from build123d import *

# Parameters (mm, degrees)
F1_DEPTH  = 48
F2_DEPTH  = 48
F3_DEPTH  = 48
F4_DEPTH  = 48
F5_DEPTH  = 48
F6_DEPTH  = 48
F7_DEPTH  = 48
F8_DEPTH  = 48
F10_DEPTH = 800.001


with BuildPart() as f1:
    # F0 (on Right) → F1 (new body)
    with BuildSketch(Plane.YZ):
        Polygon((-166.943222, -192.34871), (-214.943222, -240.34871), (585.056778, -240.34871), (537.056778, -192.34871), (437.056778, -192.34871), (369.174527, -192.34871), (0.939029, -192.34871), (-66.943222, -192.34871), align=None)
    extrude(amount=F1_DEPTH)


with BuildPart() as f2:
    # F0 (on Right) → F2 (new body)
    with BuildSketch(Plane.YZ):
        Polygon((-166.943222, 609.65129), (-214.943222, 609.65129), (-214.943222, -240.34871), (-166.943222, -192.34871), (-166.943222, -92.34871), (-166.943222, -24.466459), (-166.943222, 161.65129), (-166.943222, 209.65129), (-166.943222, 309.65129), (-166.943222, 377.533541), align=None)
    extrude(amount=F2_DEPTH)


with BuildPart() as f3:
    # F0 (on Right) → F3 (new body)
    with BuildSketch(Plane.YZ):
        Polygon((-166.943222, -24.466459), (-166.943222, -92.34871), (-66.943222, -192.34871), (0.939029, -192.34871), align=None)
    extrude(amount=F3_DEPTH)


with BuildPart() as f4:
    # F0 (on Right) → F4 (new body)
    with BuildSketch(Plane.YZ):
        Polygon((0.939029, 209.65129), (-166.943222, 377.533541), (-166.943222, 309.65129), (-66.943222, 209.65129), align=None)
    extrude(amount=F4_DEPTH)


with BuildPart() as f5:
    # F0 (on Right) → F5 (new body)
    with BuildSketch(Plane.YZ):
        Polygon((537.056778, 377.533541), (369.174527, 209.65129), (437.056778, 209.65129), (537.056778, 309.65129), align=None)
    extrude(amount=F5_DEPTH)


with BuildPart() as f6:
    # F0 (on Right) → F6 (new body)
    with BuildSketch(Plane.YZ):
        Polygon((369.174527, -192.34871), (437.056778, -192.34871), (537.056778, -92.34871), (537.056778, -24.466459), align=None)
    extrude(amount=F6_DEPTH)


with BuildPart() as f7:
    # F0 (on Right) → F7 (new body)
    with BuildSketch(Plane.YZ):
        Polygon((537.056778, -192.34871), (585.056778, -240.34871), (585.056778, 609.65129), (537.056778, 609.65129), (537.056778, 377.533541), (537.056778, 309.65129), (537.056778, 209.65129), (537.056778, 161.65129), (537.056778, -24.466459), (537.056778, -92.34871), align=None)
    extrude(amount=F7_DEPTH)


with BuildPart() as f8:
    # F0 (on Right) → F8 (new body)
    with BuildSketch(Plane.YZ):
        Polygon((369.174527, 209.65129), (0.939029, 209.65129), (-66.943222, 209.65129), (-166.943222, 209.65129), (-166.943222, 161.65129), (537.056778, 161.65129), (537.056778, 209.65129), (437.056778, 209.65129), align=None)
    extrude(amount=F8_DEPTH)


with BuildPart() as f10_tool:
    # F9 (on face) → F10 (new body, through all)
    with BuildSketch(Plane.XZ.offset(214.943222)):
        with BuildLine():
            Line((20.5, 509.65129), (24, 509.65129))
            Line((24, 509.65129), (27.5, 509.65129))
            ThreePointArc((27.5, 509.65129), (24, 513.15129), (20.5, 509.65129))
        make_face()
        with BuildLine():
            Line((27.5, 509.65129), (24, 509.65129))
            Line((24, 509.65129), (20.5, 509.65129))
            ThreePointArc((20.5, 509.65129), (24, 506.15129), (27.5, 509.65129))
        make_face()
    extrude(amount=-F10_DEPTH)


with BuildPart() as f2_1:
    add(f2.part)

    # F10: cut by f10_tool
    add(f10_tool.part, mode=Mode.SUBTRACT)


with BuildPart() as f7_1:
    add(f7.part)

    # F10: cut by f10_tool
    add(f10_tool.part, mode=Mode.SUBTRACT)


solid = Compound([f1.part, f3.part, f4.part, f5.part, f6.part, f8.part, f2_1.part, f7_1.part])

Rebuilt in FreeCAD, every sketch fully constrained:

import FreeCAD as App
import Part
import Sketcher


def add_polygon(sketch, points):
    """Adds a closed chain of lines whose ends are joined by coincident constraints."""
    first, n = sketch.GeometryCount, len(points)
    for a, b in zip(points, points[1:] + points[:1]):
        sketch.addGeometry(Part.LineSegment(App.Vector(*a, 0), App.Vector(*b, 0)), False)
    for i in range(n):
        sketch.addConstraint(Sketcher.Constraint("Coincident", first + i, 2, first + (i + 1) % n, 1))

doc = App.newDocument("Part")
params = doc.addObject("Spreadsheet::Sheet", "Params")
for row, (alias, value) in enumerate([
    ("sketch1_width", "800 mm"),
    ("sketch1_width2", "704 mm"),
    ("pad1_length", "48 mm"),
    ("sketch2_width", "48 mm"),
    ("sketch2_height", "850 mm"),
    ("sketch2_height2", "802 mm"),
    ("pad2_length", "48 mm"),
    ("pad3_length", "48 mm"),
    ("pad4_length", "48 mm"),
    ("pad5_length", "48 mm"),
    ("pad6_length", "48 mm"),
    ("sketch7_width", "48 mm"),
    ("sketch7_height", "850 mm"),
    ("sketch7_height2", "802 mm"),
    ("pad7_length", "48 mm"),
    ("sketch8_width", "704 mm"),
    ("sketch8_height", "48 mm"),
    ("pad8_length", "48 mm"),
    ("sketch9_diameter", "7 mm"),
    ("pad9_length", "800.001 mm"),
], start=1):
    params.set(f"A{row}", alias)
    params.set(f"B{row}", "=" + value)
    params.setAlias(f"B{row}", alias)

body = doc.addObject("PartDesign::Body", "Body")

sketch1 = body.newObject("Sketcher::SketchObject", "Sketch")
sketch1.AttachmentSupport = (doc.getObject("YZ_Plane"), [""])
sketch1.MapMode = "FlatFace"
add_polygon(sketch1, [(-166.943222, -192.34871), (-214.943222, -240.34871), (585.056778, -240.34871), (537.056778, -192.34871)])
sketch1.addConstraint([
    Sketcher.Constraint("Horizontal", 1),
    Sketcher.Constraint("Horizontal", 3),
    Sketcher.Constraint("Perpendicular", 0, 2),
    Sketcher.Constraint("Equal", 0, 2),
    Sketcher.Constraint("DistanceX", 1, 1, 1, 2, 800.0),
    Sketcher.Constraint("DistanceX", 3, 2, 3, 1, 704.0),
    Sketcher.Constraint("DistanceX", 0, 2, -1, 1, 214.943222),
    Sketcher.Constraint("DistanceY", 0, 2, -1, 1, 240.34871),
])
sketch1.setExpression("Constraints[8]", "Params.sketch1_width")
sketch1.setExpression("Constraints[9]", "Params.sketch1_width2")
pad1 = body.newObject("PartDesign::Pad", "Pad")
pad1.Profile = sketch1
pad1.setExpression("Length", "Params.pad1_length")
body2 = doc.addObject("PartDesign::Body", "Body001")

sketch2 = body2.newObject("Sketcher::SketchObject", "Sketch001")
sketch2.AttachmentSupport = (doc.getObject("YZ_Plane001"), [""])
sketch2.MapMode = "FlatFace"
add_polygon(sketch2, [(-166.943222, 609.65129), (-214.943222, 609.65129), (-214.943222, -240.34871), (-166.943222, -192.34871)])
sketch2.addConstraint([
    Sketcher.Constraint("Horizontal", 0),
    Sketcher.Constraint("Vertical", 1),
    Sketcher.Constraint("Vertical", 3),
    Sketcher.Constraint("DistanceX", 0, 2, 0, 1, 48.0),
    Sketcher.Constraint("DistanceY", 1, 2, 1, 1, 850.0),
    Sketcher.Constraint("DistanceY", 3, 1, 3, 2, 802.0),
    Sketcher.Constraint("DistanceX", 0, 2, -1, 1, 214.943222),
    Sketcher.Constraint("DistanceY", -1, 1, 0, 2, 609.65129),
])
sketch2.setExpression("Constraints[7]", "Params.sketch2_width")
sketch2.setExpression("Constraints[8]", "Params.sketch2_height")
sketch2.setExpression("Constraints[9]", "Params.sketch2_height2")
pad2 = body2.newObject("PartDesign::Pad", "Pad001")
pad2.Profile = sketch2
pad2.setExpression("Length", "Params.pad2_length")
body3 = doc.addObject("PartDesign::Body", "Body002")

sketch3 = body3.newObject("Sketcher::SketchObject", "Sketch002")
sketch3.AttachmentSupport = (doc.getObject("YZ_Plane002"), [""])
sketch3.MapMode = "FlatFace"
add_polygon(sketch3, [(-166.943222, -24.466459), (-166.943222, -92.34871), (-66.943222, -192.34871), (0.939029, -192.34871)])
sketch3.addConstraint([
    Sketcher.Constraint("Vertical", 0),
    Sketcher.Constraint("Horizontal", 2),
    Sketcher.Constraint("Parallel", 1, 3),
    Sketcher.Constraint("Equal", 2, 0),
    Sketcher.Constraint("DistanceX", 0, 2, 1, 2, 100.0),
    Sketcher.Constraint("DistanceX", 2, 1, 2, 2, 67.882251),
    Sketcher.Constraint("DistanceX", 0, 2, -1, 1, 166.943222),
    Sketcher.Constraint("DistanceY", 0, 2, -1, 1, 92.34871),
])
pad3 = body3.newObject("PartDesign::Pad", "Pad002")
pad3.Profile = sketch3
pad3.setExpression("Length", "Params.pad3_length")
body4 = doc.addObject("PartDesign::Body", "Body003")

sketch4 = body4.newObject("Sketcher::SketchObject", "Sketch003")
sketch4.AttachmentSupport = (doc.getObject("YZ_Plane003"), [""])
sketch4.MapMode = "FlatFace"
add_polygon(sketch4, [(0.939029, 209.65129), (-166.943222, 377.533541), (-166.943222, 309.65129), (-66.943222, 209.65129)])
sketch4.addConstraint([
    Sketcher.Constraint("Vertical", 1),
    Sketcher.Constraint("Horizontal", 3),
    Sketcher.Constraint("Parallel", 0, 2),
    Sketcher.Constraint("Equal", 3, 1),
    Sketcher.Constraint("DistanceX", 1, 2, 2, 2, 100.0),
    Sketcher.Constraint("DistanceX", 3, 1, 3, 2, 67.882251),
    Sketcher.Constraint("DistanceX", 0, 2, -1, 1, 166.943222),
    Sketcher.Constraint("DistanceY", -1, 1, 0, 2, 377.533541),
])
pad4 = body4.newObject("PartDesign::Pad", "Pad003")
pad4.Profile = sketch4
pad4.setExpression("Length", "Params.pad4_length")
body5 = doc.addObject("PartDesign::Body", "Body004")

sketch5 = body5.newObject("Sketcher::SketchObject", "Sketch004")
sketch5.AttachmentSupport = (doc.getObject("YZ_Plane004"), [""])
sketch5.MapMode = "FlatFace"
add_polygon(sketch5, [(537.056778, 377.533541), (369.174527, 209.65129), (437.056778, 209.65129), (537.056778, 309.65129)])
sketch5.addConstraint([
    Sketcher.Constraint("Horizontal", 1),
    Sketcher.Constraint("Vertical", 3),
    Sketcher.Constraint("Parallel", 0, 2),
    Sketcher.Constraint("Equal", 1, 3),
    Sketcher.Constraint("DistanceX", 1, 2, 2, 2, 100.0),
    Sketcher.Constraint("DistanceX", 1, 1, 1, 2, 67.882251),
    Sketcher.Constraint("DistanceY", -1, 1, 0, 2, 209.65129),
    Sketcher.Constraint("DistanceX", -1, 1, 1, 2, 437.056778),
])
pad5 = body5.newObject("PartDesign::Pad", "Pad004")
pad5.Profile = sketch5
pad5.setExpression("Length", "Params.pad5_length")
body6 = doc.addObject("PartDesign::Body", "Body005")

sketch6 = body6.newObject("Sketcher::SketchObject", "Sketch005")
sketch6.AttachmentSupport = (doc.getObject("YZ_Plane005"), [""])
sketch6.MapMode = "FlatFace"
add_polygon(sketch6, [(369.174527, -192.34871), (437.056778, -192.34871), (537.056778, -92.34871), (537.056778, -24.466459)])
sketch6.addConstraint([
    Sketcher.Constraint("Horizontal", 0),
    Sketcher.Constraint("Vertical", 2),
    Sketcher.Constraint("Parallel", 1, 3),
    Sketcher.Constraint("Equal", 0, 2),
    Sketcher.Constraint("DistanceX", 0, 2, 1, 2, 100.0),
    Sketcher.Constraint("DistanceX", 0, 1, 0, 2, 67.882251),
    Sketcher.Constraint("DistanceX", -1, 1, 0, 2, 437.056778),
    Sketcher.Constraint("DistanceY", 0, 2, -1, 1, 192.34871),
])
pad6 = body6.newObject("PartDesign::Pad", "Pad005")
pad6.Profile = sketch6
pad6.setExpression("Length", "Params.pad6_length")
body7 = doc.addObject("PartDesign::Body", "Body006")

sketch7 = body7.newObject("Sketcher::SketchObject", "Sketch006")
sketch7.AttachmentSupport = (doc.getObject("YZ_Plane006"), [""])
sketch7.MapMode = "FlatFace"
add_polygon(sketch7, [(537.056778, -192.34871), (585.056778, -240.34871), (585.056778, 609.65129), (537.056778, 609.65129)])
sketch7.addConstraint([
    Sketcher.Constraint("Vertical", 1),
    Sketcher.Constraint("Horizontal", 2),
    Sketcher.Constraint("Vertical", 3),
    Sketcher.Constraint("DistanceX", 2, 2, 2, 1, 48.0),
    Sketcher.Constraint("DistanceY", 1, 1, 1, 2, 850.0),
    Sketcher.Constraint("DistanceY", 3, 2, 3, 1, 802.0),
    Sketcher.Constraint("DistanceX", -1, 1, 0, 2, 585.056778),
    Sketcher.Constraint("DistanceY", 0, 2, -1, 1, 240.34871),
])
sketch7.setExpression("Constraints[7]", "Params.sketch7_width")
sketch7.setExpression("Constraints[8]", "Params.sketch7_height")
sketch7.setExpression("Constraints[9]", "Params.sketch7_height2")
pad7 = body7.newObject("PartDesign::Pad", "Pad006")
pad7.Profile = sketch7
pad7.setExpression("Length", "Params.pad7_length")
body8 = doc.addObject("PartDesign::Body", "Body007")

sketch8 = body8.newObject("Sketcher::SketchObject", "Sketch007")
sketch8.AttachmentSupport = (doc.getObject("YZ_Plane007"), [""])
sketch8.MapMode = "FlatFace"
add_polygon(sketch8, [(-166.943222, 209.65129), (-166.943222, 161.65129), (537.056778, 161.65129), (537.056778, 209.65129)])
sketch8.addConstraint([
    Sketcher.Constraint("Vertical", 0),
    Sketcher.Constraint("Horizontal", 1),
    Sketcher.Constraint("Vertical", 2),
    Sketcher.Constraint("Horizontal", 3),
    Sketcher.Constraint("DistanceX", 1, 1, 1, 2, 704.0),
    Sketcher.Constraint("DistanceY", 0, 2, 0, 1, 48.0),
    Sketcher.Constraint("DistanceX", 0, 2, -1, 1, 166.943222),
    Sketcher.Constraint("DistanceY", -1, 1, 0, 2, 161.65129),
])
sketch8.setExpression("Constraints[8]", "Params.sketch8_width")
sketch8.setExpression("Constraints[9]", "Params.sketch8_height")
pad8 = body8.newObject("PartDesign::Pad", "Pad007")
pad8.Profile = sketch8
pad8.setExpression("Length", "Params.pad8_length")
body9 = doc.addObject("PartDesign::Body", "Body008")

sketch9 = body9.newObject("Sketcher::SketchObject", "Sketch008")
sketch9.AttachmentSupport = (doc.getObject("XZ_Plane008"), [""])
sketch9.MapMode = "FlatFace"
sketch9.AttachmentOffset = App.Placement(App.Vector(0, 0, 214.943222), App.Rotation())
sketch9.addGeometry(Part.Circle(App.Vector(24, 509.65129, 0), App.Vector(0, 0, 1), 3.5), False)
sketch9.addConstraint([
    Sketcher.Constraint("Diameter", 0, 7.0),
    Sketcher.Constraint("DistanceX", -1, 1, 0, 3, 24.0),
    Sketcher.Constraint("DistanceY", -1, 1, 0, 3, 509.65129),
])
sketch9.setExpression("Constraints[0]", "Params.sketch9_diameter")
pad9 = body9.newObject("PartDesign::Pad", "Pad008")
pad9.Profile = sketch9
pad9.setExpression("Length", "Params.pad9_length")
pad9.Reversed = True
doc.recompute()

body10 = doc.addObject("PartDesign::Body", "Body009")
body10.BaseFeature = body9
boolean = body2.newObject("PartDesign::Boolean", "Boolean")
boolean.Type = "Cut"
boolean.addObjects([body10])
doc.recompute()

boolean2 = body7.newObject("PartDesign::Boolean", "Boolean001")
boolean2.Type = "Cut"
boolean2.addObjects([body9])

doc.recompute()
